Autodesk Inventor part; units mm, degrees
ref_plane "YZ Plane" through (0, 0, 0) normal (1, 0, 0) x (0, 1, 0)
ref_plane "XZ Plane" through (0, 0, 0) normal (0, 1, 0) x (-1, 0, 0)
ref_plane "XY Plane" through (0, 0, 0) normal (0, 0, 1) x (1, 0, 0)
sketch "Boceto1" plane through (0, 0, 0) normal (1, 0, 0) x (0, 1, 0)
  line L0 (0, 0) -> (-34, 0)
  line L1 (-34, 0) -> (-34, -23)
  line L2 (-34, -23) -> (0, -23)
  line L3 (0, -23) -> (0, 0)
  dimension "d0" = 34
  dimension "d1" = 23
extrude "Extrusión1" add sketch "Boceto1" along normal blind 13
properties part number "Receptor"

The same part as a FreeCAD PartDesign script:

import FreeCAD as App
import Part
import Sketcher
Q = App.Units.Quantity

doc = App.newDocument("Part")
body = doc.addObject("PartDesign::Body", "Body")

sketch1 = doc.addObject("Sketcher::SketchObject", "Sketch")
body.addObject(sketch1)
sketch1.AttachmentSupport = (doc.YZ_Plane, [""])
sketch1.MapMode = "FlatFace"
sketch1.addGeometry([
    Part.LineSegment(App.Vector(0, -23, 0), App.Vector(0, 0, 0)),
    Part.LineSegment(App.Vector(0, 0, 0), App.Vector(-34, 0, 0)),
    Part.LineSegment(App.Vector(-34, 0, 0), App.Vector(-34, -23, 0)),
    Part.LineSegment(App.Vector(-34, -23, 0), App.Vector(0, -23, 0)),
], False)
sketch1.addConstraint([
    Sketcher.Constraint("Coincident", 0, 2, 1, 1),
    Sketcher.Constraint("Coincident", 1, 2, 2, 1),
    Sketcher.Constraint("Coincident", 2, 2, 3, 1),
    Sketcher.Constraint("Coincident", 3, 2, 0, 1),
    Sketcher.Constraint("Vertical", 0),
    Sketcher.Constraint("Horizontal", 1),
    Sketcher.Constraint("Vertical", 2),
    Sketcher.Constraint("Horizontal", 3),
    Sketcher.Constraint("Coincident", 0, 2, -1, 1),
    Sketcher.Constraint("DistanceX", 1, 2, 1, 1, Q("34 mm")),
    Sketcher.Constraint("DistanceY", 0, 1, 0, 2, Q("23 mm")),
])
pad1 = doc.addObject("PartDesign::Pad", "Pad")
body.addObject(pad1)
pad1.Profile = sketch1
pad1.Length = 13

doc.recompute()
